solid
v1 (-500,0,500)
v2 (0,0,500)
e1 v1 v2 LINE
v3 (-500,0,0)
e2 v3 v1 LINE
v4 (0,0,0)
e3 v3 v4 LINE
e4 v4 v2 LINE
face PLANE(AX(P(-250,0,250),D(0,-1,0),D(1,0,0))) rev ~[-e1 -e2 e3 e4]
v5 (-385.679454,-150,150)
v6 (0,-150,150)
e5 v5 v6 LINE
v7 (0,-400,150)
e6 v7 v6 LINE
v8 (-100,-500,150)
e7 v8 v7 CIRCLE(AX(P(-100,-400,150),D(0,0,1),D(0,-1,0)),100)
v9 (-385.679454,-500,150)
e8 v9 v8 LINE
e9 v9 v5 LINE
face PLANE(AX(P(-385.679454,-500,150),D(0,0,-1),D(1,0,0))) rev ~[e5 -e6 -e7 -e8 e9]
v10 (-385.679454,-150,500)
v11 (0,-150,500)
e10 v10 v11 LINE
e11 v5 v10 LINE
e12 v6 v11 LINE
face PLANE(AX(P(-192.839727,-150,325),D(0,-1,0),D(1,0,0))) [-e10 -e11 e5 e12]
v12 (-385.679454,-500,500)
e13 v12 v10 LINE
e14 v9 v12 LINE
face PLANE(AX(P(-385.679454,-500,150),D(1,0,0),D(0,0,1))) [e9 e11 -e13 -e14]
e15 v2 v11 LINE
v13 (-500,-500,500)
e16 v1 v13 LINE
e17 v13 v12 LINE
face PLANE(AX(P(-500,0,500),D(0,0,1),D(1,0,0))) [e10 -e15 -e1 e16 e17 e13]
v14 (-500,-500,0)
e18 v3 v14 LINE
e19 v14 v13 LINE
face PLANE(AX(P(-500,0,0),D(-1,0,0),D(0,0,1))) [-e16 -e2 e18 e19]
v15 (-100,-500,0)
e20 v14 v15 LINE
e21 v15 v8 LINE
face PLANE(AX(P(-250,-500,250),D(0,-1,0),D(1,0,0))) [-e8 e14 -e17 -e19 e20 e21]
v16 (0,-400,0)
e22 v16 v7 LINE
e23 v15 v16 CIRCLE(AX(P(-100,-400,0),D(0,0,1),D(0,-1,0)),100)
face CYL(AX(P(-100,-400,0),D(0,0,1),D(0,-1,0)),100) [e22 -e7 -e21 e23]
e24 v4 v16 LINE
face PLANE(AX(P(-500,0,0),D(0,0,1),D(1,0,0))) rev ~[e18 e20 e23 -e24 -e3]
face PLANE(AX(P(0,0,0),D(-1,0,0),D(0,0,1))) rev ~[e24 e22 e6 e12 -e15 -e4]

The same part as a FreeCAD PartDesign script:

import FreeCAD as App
import Part
import Sketcher

V = App.Vector


def edges_at(feature, points):
    """Names of the edges that pass closest to the given points."""
    edges = feature.Shape.Edges
    near = lambda p: min(range(len(edges)), key=lambda i: edges[i].distToShape(Part.Vertex(*p))[0])
    return sorted({f"Edge{near(p) + 1}" for p in points})

doc = App.newDocument("Part")
body = doc.addObject("PartDesign::Body", "Body")

# Sketch on XZ plane
sketch1 = doc.addObject("Sketcher::SketchObject", "Sketch")
body.addObject(sketch1)
sketch1.AttachmentSupport = (doc.XZ_Plane, [""])
sketch1.MapMode = "FlatFace"
sketch1.addGeometry(Part.LineSegment(V(-500, 500, 0), V(-500, 0, 0)), False)
sketch1.addGeometry(Part.LineSegment(V(-500, 0, 0), V(0, 0, 0)), False)
sketch1.addGeometry(Part.LineSegment(V(0, 0, 0), V(0, 500, 0)), False)
sketch1.addGeometry(Part.LineSegment(V(0, 500, 0), V(-500, 500, 0)), False)
sketch1.addConstraint(Sketcher.Constraint("Coincident", 0, 2, 1, 1))
sketch1.addConstraint(Sketcher.Constraint("Coincident", 1, 2, 2, 1))
sketch1.addConstraint(Sketcher.Constraint("Coincident", 2, 2, 3, 1))
sketch1.addConstraint(Sketcher.Constraint("Coincident", 3, 2, 0, 1))
sketch1.addConstraint(Sketcher.Constraint("Vertical", 0))
sketch1.addConstraint(Sketcher.Constraint("Horizontal", 1))
sketch1.addConstraint(Sketcher.Constraint("Vertical", 2))
sketch1.addConstraint(Sketcher.Constraint("Horizontal", 3))
sketch1.addConstraint(Sketcher.Constraint("Coincident", 1, 2, -1, 1))
sketch1.addConstraint(Sketcher.Constraint("Equal", 3, 0))
sketch1.addConstraint(Sketcher.Constraint("DistanceX", 1, 1, 1, 2, 500.0))
pad1 = doc.addObject("PartDesign::Pad", "Pad")
body.addObject(pad1)
pad1.Profile = sketch1
pad1.Length = 500

# Sketch on XZ plane
sketch2 = doc.addObject("Sketcher::SketchObject", "Sketch001")
body.addObject(sketch2)
sketch2.AttachmentSupport = (doc.XZ_Plane, [""])
sketch2.MapMode = "FlatFace"
sketch2.AttachmentOffset = App.Placement(V(0, 0, 500), App.Rotation())
sketch2.addGeometry(Part.LineSegment(V(-386, 500, 0), V(-386, 150, 0)), False)
sketch2.addGeometry(Part.LineSegment(V(-386, 150, 0), V(0, 150, 0)), False)
sketch2.addGeometry(Part.LineSegment(V(0, 150, 0), V(0, 500, 0)), False)
sketch2.addGeometry(Part.LineSegment(V(0, 500, 0), V(-386, 500, 0)), False)
sketch2.addConstraint(Sketcher.Constraint("Coincident", 0, 2, 1, 1))
sketch2.addConstraint(Sketcher.Constraint("Coincident", 1, 2, 2, 1))
sketch2.addConstraint(Sketcher.Constraint("Coincident", 2, 2, 3, 1))
sketch2.addConstraint(Sketcher.Constraint("Coincident", 3, 2, 0, 1))
sketch2.addConstraint(Sketcher.Constraint("Vertical", 0))
sketch2.addConstraint(Sketcher.Constraint("Horizontal", 1))
sketch2.addConstraint(Sketcher.Constraint("Vertical", 2))
sketch2.addConstraint(Sketcher.Constraint("Horizontal", 3))
sketch2.addConstraint(Sketcher.Constraint("PointOnObject", 1, 2, -2))
sketch2.addConstraint(Sketcher.Constraint("DistanceY", 0, 2, 0, 1, 350.0))
sketch2.addConstraint(Sketcher.Constraint("DistanceY", -1, 1, 0, 2, 150.0))
sketch2.addConstraint(Sketcher.Constraint("DistanceX", 1, 1, 1, 2, 385.679454))
pocket1 = doc.addObject("PartDesign::Pocket", "Pocket")
body.addObject(pocket1)
pocket1.Profile = sketch2
pocket1.Length = 350
doc.recompute()

fillet = doc.addObject("PartDesign::Fillet", "Fillet")
body.addObject(fillet)
fillet.Base = (pocket1, edges_at(pocket1, [(0, -500, 75)]))
fillet.Radius = 100

doc.recompute()
